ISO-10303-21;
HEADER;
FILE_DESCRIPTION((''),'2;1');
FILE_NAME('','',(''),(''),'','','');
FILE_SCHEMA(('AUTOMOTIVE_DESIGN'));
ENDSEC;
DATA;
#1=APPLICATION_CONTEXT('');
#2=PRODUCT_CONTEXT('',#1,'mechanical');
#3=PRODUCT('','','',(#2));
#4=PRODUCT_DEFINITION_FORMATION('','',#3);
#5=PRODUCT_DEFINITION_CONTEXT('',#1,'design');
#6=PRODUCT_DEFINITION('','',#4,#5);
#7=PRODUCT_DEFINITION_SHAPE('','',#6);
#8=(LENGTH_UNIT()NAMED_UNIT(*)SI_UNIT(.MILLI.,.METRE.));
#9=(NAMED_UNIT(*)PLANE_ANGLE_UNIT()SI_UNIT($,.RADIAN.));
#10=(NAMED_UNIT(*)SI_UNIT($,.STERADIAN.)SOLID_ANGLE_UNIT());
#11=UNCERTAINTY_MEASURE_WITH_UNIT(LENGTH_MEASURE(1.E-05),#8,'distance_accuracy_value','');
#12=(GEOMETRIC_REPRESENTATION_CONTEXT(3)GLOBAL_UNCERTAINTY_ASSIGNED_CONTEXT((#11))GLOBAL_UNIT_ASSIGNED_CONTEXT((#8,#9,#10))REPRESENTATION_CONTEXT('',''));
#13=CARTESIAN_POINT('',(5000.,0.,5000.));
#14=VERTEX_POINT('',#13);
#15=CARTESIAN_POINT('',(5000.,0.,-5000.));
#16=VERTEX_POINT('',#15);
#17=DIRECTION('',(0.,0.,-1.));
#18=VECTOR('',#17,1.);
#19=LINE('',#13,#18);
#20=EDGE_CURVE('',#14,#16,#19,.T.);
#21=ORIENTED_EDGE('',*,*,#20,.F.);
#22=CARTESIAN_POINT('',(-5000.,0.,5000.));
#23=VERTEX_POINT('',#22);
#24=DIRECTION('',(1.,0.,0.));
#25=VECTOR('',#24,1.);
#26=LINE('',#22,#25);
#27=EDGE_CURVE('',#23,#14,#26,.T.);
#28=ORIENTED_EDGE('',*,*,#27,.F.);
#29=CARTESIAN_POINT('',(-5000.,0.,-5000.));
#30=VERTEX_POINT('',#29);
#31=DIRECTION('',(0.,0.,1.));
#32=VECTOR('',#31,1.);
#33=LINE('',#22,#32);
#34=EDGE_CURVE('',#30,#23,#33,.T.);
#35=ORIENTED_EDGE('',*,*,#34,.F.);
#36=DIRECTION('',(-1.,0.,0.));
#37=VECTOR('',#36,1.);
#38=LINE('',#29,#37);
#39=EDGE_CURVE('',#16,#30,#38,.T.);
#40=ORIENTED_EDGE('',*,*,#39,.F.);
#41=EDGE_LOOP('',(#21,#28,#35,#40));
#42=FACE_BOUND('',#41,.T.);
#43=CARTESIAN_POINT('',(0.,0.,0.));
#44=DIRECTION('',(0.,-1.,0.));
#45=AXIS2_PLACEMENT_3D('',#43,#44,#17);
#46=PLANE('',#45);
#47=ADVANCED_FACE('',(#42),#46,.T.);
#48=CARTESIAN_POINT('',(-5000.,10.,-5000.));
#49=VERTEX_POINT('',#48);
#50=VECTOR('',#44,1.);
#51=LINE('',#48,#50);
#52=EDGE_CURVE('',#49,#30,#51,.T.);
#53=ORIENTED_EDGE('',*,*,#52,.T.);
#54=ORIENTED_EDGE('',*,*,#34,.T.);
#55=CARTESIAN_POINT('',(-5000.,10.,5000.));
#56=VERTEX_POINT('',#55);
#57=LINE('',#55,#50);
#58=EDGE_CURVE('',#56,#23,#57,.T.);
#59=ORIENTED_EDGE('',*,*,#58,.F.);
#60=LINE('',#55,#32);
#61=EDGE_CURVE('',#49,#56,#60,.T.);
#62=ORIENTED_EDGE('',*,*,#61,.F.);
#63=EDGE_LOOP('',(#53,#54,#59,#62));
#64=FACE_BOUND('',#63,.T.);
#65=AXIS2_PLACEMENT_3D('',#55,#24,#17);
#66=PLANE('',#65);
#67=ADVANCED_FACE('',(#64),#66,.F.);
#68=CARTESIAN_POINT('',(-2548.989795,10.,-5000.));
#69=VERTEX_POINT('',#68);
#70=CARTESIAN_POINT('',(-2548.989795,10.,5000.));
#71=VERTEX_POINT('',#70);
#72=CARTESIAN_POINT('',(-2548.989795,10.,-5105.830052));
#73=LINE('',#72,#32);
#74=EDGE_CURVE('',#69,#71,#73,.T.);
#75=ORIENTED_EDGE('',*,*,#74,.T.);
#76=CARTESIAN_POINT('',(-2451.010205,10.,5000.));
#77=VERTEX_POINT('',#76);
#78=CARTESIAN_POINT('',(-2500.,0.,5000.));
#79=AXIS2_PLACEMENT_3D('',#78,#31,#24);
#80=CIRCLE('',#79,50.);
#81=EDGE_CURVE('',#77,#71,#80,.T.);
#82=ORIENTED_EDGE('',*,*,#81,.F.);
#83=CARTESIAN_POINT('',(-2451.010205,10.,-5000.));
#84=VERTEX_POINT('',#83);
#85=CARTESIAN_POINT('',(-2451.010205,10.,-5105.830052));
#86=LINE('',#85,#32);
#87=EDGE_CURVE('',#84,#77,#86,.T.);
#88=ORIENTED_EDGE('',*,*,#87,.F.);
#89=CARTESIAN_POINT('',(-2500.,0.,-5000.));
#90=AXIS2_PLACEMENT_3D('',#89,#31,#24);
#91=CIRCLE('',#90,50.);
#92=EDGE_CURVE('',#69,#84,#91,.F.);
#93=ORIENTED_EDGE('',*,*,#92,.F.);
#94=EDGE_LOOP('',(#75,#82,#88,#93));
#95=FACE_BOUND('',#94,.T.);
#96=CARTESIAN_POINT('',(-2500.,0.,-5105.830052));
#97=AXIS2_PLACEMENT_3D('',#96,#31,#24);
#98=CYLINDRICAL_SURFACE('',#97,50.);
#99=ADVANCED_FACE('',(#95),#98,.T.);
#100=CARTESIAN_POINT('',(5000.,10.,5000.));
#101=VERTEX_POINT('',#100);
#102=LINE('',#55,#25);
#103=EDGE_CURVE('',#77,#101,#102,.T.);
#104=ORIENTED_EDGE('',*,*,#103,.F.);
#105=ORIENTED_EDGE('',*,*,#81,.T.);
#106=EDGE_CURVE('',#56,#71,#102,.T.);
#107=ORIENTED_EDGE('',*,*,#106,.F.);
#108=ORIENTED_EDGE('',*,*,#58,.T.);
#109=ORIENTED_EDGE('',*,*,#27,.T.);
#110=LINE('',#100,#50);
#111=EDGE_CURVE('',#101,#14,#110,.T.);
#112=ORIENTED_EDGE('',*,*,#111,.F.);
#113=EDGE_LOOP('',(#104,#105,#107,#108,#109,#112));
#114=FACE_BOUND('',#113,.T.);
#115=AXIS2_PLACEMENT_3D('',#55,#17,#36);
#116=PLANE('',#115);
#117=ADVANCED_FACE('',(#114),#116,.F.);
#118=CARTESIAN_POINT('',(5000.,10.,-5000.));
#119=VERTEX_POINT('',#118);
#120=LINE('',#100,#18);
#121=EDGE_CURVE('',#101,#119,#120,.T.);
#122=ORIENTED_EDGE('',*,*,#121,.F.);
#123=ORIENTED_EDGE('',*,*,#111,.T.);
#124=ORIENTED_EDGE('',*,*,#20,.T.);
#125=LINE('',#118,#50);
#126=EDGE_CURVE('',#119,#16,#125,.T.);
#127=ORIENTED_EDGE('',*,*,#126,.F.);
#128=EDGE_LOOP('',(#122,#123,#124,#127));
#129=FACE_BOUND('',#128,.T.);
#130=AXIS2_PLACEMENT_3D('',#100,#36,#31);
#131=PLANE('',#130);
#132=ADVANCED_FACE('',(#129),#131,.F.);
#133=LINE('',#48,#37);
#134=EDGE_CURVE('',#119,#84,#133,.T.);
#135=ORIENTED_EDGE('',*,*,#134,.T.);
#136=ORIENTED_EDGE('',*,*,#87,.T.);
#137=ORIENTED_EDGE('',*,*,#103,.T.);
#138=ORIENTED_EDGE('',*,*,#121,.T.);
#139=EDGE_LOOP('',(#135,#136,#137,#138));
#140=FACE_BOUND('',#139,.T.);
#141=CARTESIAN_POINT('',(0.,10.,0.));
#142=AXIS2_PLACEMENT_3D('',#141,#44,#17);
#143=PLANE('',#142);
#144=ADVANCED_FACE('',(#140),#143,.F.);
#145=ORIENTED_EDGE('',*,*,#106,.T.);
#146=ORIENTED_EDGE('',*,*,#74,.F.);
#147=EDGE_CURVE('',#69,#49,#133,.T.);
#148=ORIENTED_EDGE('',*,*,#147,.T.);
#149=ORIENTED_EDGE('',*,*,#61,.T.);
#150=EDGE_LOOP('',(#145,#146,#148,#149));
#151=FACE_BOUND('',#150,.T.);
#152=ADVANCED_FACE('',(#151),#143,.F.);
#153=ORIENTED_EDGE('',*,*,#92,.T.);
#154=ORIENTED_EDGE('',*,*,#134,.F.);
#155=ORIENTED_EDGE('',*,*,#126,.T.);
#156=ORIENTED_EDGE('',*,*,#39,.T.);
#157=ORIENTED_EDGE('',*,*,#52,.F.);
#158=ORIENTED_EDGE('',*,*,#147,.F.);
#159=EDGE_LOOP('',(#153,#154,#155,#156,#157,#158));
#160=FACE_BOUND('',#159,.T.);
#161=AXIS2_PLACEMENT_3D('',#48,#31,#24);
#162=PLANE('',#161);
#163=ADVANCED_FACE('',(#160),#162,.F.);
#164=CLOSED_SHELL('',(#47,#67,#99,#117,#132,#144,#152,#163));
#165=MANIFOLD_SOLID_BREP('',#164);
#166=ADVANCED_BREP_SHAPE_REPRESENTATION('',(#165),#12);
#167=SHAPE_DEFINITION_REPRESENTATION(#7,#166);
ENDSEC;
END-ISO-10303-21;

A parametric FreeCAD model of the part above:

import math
import FreeCAD as App
import Part
import Sketcher
from FreeCAD import Vector

doc = App.newDocument("Part")
body = doc.addObject("PartDesign::Body", "Body")

sketch1 = body.newObject("Sketcher::SketchObject", "Sketch")
sketch1.AttachmentSupport = (doc.getObject("XZ_Plane"), [""])
sketch1.MapMode = "FlatFace"
sketch1.addGeometry(Part.LineSegment(Vector(-5000, -5000, 0), Vector(-5000, 5000, 0)), False)
sketch1.addGeometry(Part.LineSegment(Vector(-5000, 5000, 0), Vector(5000, 5000, 0)), False)
sketch1.addGeometry(Part.LineSegment(Vector(5000, 5000, 0), Vector(5000, -5000, 0)), False)
sketch1.addGeometry(Part.LineSegment(Vector(5000, -5000, 0), Vector(-5000, -5000, 0)), False)
sketch1.addConstraint(Sketcher.Constraint("Coincident", 0, 2, 1, 1))
sketch1.addConstraint(Sketcher.Constraint("Coincident", 1, 2, 2, 1))
sketch1.addConstraint(Sketcher.Constraint("Coincident", 2, 2, 3, 1))
sketch1.addConstraint(Sketcher.Constraint("Coincident", 3, 2, 0, 1))
sketch1.addConstraint(Sketcher.Constraint("Vertical", 0))
sketch1.addConstraint(Sketcher.Constraint("Horizontal", 1))
sketch1.addConstraint(Sketcher.Constraint("Vertical", 2))
sketch1.addConstraint(Sketcher.Constraint("Horizontal", 3))
sketch1.addConstraint(Sketcher.Constraint("Symmetric", 0, 2, 2, 2, -1, 1))
sketch1.addConstraint(Sketcher.Constraint("Equal", 3, 0))
sketch1.addConstraint(Sketcher.Constraint("DistanceX", 1, 1, 1, 2, 10000.0))
pad1 = body.newObject("PartDesign::Pad", "Pad")
pad1.Profile = sketch1
pad1.Length = 10
pad1.Reversed = True

sketch2 = body.newObject("Sketcher::SketchObject", "Sketch001")
sketch2.AttachmentSupport = (doc.getObject("XY_Plane"), [""])
sketch2.MapMode = "FlatFace"
sketch2.AttachmentOffset = App.Placement(Vector(0, 0, 5000), App.Rotation())
sketch2.addGeometry(Part.LineSegment(Vector(-2548.989795, 10, 0), Vector(-2451.010205, 10, 0)), False)
sketch2.addGeometry(Part.ArcOfCircle(Part.Circle(Vector(-2500, 0, 0), Vector(0, 0, 1), 50), math.radians(11.536959), math.radians(168.463041)), False)
sketch2.addConstraint(Sketcher.Constraint("Coincident", 0, 1, 1, 2))
sketch2.addConstraint(Sketcher.Constraint("Coincident", 1, 1, 0, 2))
sketch2.addConstraint(Sketcher.Constraint("Horizontal", 0))
sketch2.addConstraint(Sketcher.Constraint("PointOnObject", 1, 3, -1))
sketch2.addConstraint(Sketcher.Constraint("Radius", 1, 50.0))
sketch2.addConstraint(Sketcher.Constraint("DistanceX", 1, 3, -1, 1, 2500.0))
sketch2.addConstraint(Sketcher.Constraint("DistanceY", -1, 1, 0, 1, 10.0))
pad2 = body.newObject("PartDesign::Pad", "Pad001")
pad2.Profile = sketch2
pad2.Length = 10000
pad2.Reversed = True

doc.recompute()
